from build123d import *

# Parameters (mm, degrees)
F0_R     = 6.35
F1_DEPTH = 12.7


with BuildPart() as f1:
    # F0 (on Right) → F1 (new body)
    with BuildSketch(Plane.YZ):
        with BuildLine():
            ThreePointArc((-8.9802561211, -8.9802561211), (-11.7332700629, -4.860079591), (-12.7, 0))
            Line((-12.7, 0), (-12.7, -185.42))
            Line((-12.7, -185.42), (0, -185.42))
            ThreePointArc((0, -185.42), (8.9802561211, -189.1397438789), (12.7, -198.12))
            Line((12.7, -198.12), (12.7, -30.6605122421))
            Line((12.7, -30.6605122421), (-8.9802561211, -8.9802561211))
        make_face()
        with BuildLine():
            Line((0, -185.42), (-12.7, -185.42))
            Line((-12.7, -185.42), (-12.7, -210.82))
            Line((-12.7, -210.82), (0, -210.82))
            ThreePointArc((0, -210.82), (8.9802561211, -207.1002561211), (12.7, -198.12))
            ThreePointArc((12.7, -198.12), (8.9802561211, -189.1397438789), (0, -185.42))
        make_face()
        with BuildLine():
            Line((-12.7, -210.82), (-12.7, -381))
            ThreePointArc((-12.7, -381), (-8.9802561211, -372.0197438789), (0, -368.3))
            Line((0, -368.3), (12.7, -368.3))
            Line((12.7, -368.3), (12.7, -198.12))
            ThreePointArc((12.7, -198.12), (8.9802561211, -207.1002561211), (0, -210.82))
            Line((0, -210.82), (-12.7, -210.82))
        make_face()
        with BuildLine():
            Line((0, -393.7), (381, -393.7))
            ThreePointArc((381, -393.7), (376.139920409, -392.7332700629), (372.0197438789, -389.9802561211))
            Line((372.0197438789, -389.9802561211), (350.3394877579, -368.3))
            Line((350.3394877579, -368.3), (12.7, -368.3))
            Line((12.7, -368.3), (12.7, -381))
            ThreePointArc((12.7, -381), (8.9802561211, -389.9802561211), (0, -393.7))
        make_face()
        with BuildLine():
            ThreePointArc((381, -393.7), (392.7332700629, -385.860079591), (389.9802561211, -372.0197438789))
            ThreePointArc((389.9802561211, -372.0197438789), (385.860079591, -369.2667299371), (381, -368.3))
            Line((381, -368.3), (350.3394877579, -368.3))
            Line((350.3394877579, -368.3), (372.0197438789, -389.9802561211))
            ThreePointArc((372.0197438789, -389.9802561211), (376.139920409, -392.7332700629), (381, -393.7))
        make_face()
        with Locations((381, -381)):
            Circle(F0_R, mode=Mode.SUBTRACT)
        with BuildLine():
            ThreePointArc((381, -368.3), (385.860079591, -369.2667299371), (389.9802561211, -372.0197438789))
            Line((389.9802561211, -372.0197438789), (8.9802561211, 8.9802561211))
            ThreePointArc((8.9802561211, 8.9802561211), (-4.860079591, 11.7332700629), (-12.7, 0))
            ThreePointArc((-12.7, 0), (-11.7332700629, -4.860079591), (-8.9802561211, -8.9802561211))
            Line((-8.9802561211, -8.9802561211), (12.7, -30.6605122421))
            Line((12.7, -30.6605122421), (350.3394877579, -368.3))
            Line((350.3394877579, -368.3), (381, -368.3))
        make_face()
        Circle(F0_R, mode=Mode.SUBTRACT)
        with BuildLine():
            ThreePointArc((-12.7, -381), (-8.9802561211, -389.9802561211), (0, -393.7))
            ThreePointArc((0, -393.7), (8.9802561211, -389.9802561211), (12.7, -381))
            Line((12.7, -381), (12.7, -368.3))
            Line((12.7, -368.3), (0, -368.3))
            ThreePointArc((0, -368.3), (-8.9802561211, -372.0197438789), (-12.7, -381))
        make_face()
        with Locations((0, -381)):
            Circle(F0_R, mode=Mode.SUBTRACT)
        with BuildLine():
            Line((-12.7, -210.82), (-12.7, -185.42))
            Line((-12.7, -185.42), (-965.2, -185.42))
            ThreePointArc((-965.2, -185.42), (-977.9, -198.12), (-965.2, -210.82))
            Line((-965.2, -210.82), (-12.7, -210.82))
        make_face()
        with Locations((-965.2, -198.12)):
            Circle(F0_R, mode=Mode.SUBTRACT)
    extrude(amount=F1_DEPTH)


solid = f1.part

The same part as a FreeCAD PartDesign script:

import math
import FreeCAD as App
import Part
import Sketcher

V = App.Vector
Q = App.Units.Quantity


def add_polygon(sketch, points):
    """Adds a closed chain of lines whose ends are joined by coincident constraints."""
    first, n = sketch.GeometryCount, len(points)
    for a, b in zip(points, points[1:] + points[:1]):
        sketch.addGeometry(Part.LineSegment(App.Vector(*a, 0), App.Vector(*b, 0)), False)
    for i in range(n):
        sketch.addConstraint(Sketcher.Constraint("Coincident", first + i, 2, first + (i + 1) % n, 1))

doc = App.newDocument("Part")
body = doc.addObject("PartDesign::Body", "Body")

# Sketch on YZ plane
sketch1 = doc.addObject("Sketcher::SketchObject", "Sketch")
body.addObject(sketch1)
sketch1.AttachmentSupport = (doc.YZ_Plane, [""])
sketch1.MapMode = "FlatFace"
sketch1.addGeometry(Part.ArcOfCircle(Part.Circle(V(0, 0, 0), V(0, 0, 1), 13), math.radians(45), math.radians(180)), False)  # 0
sketch1.addGeometry(Part.LineSegment(V(-13, 0, 0), V(-13, -185, 0)), False)  # 1
sketch1.addGeometry(Part.LineSegment(V(-13, -185, 0), V(-965, -185, 0)), False)  # 2
sketch1.addGeometry(Part.ArcOfCircle(Part.Circle(V(-965, -198, 0), V(0, 0, 1), 13), math.radians(90), math.radians(270)), False)  # 3
sketch1.addGeometry(Part.LineSegment(V(-965, -211, 0), V(-13, -211, 0)), False)  # 4
sketch1.addGeometry(Part.LineSegment(V(-13, -211, 0), V(-13, -381, 0)), False)  # 5
sketch1.addGeometry(Part.ArcOfCircle(Part.Circle(V(0, -381, 0), V(0, 0, 1), 13), math.radians(180), math.radians(270)), False)  # 6
sketch1.addGeometry(Part.LineSegment(V(0, -394, 0), V(381, -394, 0)), False)  # 7
sketch1.addGeometry(Part.ArcOfCircle(Part.Circle(V(381, -381, 0), V(0, 0, 1), 13), math.radians(-90), math.radians(45)), False)  # 8
sketch1.addGeometry(Part.LineSegment(V(390, -372, 0), V(9, 9, 0)), False)  # 9
add_polygon(sketch1, [(350, -368), (13, -368), (13, -31)])  # lines 10-12
sketch1.addGeometry(Part.Circle(V(-965, -198, 0), V(0, 0, 1), 6), False)  # 13
sketch1.addGeometry(Part.Circle(V(0, -381, 0), V(0, 0, 1), 6), False)  # 14
sketch1.addGeometry(Part.Circle(V(381, -381, 0), V(0, 0, 1), 6), False)  # 15
sketch1.addGeometry(Part.Circle(V(0, 0, 0), V(0, 0, 1), 6), False)  # 16
sketch1.addConstraint(Sketcher.Constraint("Tangent", 0, 2, 1, 1))
sketch1.addConstraint(Sketcher.Constraint("Coincident", 1, 2, 2, 1))
sketch1.addConstraint(Sketcher.Constraint("Tangent", 2, 2, 3, 1))
sketch1.addConstraint(Sketcher.Constraint("Tangent", 3, 2, 4, 1))
sketch1.addConstraint(Sketcher.Constraint("Coincident", 4, 2, 5, 1))
sketch1.addConstraint(Sketcher.Constraint("Tangent", 5, 2, 6, 1))
sketch1.addConstraint(Sketcher.Constraint("Tangent", 6, 2, 7, 1))
sketch1.addConstraint(Sketcher.Constraint("Tangent", 7, 2, 8, 1))
sketch1.addConstraint(Sketcher.Constraint("Tangent", 8, 2, 9, 1))
sketch1.addConstraint(Sketcher.Constraint("Tangent", 9, 2, 0, 1))
sketch1.addConstraint(Sketcher.Constraint("Vertical", 1))
sketch1.addConstraint(Sketcher.Constraint("Horizontal", 2))
sketch1.addConstraint(Sketcher.Constraint("Horizontal", 4))
sketch1.addConstraint(Sketcher.Constraint("Vertical", 5))
sketch1.addConstraint(Sketcher.Constraint("Horizontal", 7))
sketch1.addConstraint(Sketcher.Constraint("Horizontal", 10))
sketch1.addConstraint(Sketcher.Constraint("Vertical", 11))
sketch1.addConstraint(Sketcher.Constraint("Coincident", 0, 3, -1, 1))
sketch1.addConstraint(Sketcher.Constraint("Coincident", 16, 3, -1, 1))
sketch1.addConstraint(Sketcher.Constraint("Coincident", 13, 3, 3, 3))
sketch1.addConstraint(Sketcher.Constraint("Coincident", 14, 3, 6, 3))
sketch1.addConstraint(Sketcher.Constraint("Coincident", 15, 3, 8, 3))
sketch1.addConstraint(Sketcher.Constraint("Equal", 0, 3))
sketch1.addConstraint(Sketcher.Constraint("Equal", 3, 6))
sketch1.addConstraint(Sketcher.Constraint("Equal", 6, 8))
sketch1.addConstraint(Sketcher.Constraint("Equal", 13, 14))
sketch1.addConstraint(Sketcher.Constraint("Equal", 14, 15))
sketch1.addConstraint(Sketcher.Constraint("Equal", 15, 16))
sketch1.addConstraint(Sketcher.Constraint("PointOnObject", 6, 3, -2))
sketch1.addConstraint(Sketcher.Constraint("Parallel", 9, 12))
sketch1.addConstraint(Sketcher.Constraint("Equal", 10, 11))
sketch1.addConstraint(Sketcher.Constraint("Diameter", 13, Q("0.5 in")))
sketch1.addConstraint(Sketcher.Constraint("Radius", 0, Q("0.5 in")))
sketch1.addConstraint(Sketcher.Constraint("DistanceX", 7, 1, 7, 2, Q("15 in")))
sketch1.addConstraint(Sketcher.Constraint("DistanceX", 2, 2, 2, 1, Q("37.5 in")))
sketch1.addConstraint(Sketcher.Constraint("DistanceY", 1, 2, 1, 1, Q("7.3 in")))
sketch1.addConstraint(Sketcher.Constraint("DistanceY", 6, 2, 10, 2, Q("1 in")))
sketch1.addConstraint(Sketcher.Constraint("DistanceX", 5, 2, 10, 2, Q("1 in")))
sketch1.addConstraint(Sketcher.Constraint("DistanceX", 10, 2, 10, 1, 337.639488))
pad1 = doc.addObject("PartDesign::Pad", "Pad")
body.addObject(pad1)
pad1.Profile = sketch1
pad1.Length = Q("0.5 in")

doc.recompute()
